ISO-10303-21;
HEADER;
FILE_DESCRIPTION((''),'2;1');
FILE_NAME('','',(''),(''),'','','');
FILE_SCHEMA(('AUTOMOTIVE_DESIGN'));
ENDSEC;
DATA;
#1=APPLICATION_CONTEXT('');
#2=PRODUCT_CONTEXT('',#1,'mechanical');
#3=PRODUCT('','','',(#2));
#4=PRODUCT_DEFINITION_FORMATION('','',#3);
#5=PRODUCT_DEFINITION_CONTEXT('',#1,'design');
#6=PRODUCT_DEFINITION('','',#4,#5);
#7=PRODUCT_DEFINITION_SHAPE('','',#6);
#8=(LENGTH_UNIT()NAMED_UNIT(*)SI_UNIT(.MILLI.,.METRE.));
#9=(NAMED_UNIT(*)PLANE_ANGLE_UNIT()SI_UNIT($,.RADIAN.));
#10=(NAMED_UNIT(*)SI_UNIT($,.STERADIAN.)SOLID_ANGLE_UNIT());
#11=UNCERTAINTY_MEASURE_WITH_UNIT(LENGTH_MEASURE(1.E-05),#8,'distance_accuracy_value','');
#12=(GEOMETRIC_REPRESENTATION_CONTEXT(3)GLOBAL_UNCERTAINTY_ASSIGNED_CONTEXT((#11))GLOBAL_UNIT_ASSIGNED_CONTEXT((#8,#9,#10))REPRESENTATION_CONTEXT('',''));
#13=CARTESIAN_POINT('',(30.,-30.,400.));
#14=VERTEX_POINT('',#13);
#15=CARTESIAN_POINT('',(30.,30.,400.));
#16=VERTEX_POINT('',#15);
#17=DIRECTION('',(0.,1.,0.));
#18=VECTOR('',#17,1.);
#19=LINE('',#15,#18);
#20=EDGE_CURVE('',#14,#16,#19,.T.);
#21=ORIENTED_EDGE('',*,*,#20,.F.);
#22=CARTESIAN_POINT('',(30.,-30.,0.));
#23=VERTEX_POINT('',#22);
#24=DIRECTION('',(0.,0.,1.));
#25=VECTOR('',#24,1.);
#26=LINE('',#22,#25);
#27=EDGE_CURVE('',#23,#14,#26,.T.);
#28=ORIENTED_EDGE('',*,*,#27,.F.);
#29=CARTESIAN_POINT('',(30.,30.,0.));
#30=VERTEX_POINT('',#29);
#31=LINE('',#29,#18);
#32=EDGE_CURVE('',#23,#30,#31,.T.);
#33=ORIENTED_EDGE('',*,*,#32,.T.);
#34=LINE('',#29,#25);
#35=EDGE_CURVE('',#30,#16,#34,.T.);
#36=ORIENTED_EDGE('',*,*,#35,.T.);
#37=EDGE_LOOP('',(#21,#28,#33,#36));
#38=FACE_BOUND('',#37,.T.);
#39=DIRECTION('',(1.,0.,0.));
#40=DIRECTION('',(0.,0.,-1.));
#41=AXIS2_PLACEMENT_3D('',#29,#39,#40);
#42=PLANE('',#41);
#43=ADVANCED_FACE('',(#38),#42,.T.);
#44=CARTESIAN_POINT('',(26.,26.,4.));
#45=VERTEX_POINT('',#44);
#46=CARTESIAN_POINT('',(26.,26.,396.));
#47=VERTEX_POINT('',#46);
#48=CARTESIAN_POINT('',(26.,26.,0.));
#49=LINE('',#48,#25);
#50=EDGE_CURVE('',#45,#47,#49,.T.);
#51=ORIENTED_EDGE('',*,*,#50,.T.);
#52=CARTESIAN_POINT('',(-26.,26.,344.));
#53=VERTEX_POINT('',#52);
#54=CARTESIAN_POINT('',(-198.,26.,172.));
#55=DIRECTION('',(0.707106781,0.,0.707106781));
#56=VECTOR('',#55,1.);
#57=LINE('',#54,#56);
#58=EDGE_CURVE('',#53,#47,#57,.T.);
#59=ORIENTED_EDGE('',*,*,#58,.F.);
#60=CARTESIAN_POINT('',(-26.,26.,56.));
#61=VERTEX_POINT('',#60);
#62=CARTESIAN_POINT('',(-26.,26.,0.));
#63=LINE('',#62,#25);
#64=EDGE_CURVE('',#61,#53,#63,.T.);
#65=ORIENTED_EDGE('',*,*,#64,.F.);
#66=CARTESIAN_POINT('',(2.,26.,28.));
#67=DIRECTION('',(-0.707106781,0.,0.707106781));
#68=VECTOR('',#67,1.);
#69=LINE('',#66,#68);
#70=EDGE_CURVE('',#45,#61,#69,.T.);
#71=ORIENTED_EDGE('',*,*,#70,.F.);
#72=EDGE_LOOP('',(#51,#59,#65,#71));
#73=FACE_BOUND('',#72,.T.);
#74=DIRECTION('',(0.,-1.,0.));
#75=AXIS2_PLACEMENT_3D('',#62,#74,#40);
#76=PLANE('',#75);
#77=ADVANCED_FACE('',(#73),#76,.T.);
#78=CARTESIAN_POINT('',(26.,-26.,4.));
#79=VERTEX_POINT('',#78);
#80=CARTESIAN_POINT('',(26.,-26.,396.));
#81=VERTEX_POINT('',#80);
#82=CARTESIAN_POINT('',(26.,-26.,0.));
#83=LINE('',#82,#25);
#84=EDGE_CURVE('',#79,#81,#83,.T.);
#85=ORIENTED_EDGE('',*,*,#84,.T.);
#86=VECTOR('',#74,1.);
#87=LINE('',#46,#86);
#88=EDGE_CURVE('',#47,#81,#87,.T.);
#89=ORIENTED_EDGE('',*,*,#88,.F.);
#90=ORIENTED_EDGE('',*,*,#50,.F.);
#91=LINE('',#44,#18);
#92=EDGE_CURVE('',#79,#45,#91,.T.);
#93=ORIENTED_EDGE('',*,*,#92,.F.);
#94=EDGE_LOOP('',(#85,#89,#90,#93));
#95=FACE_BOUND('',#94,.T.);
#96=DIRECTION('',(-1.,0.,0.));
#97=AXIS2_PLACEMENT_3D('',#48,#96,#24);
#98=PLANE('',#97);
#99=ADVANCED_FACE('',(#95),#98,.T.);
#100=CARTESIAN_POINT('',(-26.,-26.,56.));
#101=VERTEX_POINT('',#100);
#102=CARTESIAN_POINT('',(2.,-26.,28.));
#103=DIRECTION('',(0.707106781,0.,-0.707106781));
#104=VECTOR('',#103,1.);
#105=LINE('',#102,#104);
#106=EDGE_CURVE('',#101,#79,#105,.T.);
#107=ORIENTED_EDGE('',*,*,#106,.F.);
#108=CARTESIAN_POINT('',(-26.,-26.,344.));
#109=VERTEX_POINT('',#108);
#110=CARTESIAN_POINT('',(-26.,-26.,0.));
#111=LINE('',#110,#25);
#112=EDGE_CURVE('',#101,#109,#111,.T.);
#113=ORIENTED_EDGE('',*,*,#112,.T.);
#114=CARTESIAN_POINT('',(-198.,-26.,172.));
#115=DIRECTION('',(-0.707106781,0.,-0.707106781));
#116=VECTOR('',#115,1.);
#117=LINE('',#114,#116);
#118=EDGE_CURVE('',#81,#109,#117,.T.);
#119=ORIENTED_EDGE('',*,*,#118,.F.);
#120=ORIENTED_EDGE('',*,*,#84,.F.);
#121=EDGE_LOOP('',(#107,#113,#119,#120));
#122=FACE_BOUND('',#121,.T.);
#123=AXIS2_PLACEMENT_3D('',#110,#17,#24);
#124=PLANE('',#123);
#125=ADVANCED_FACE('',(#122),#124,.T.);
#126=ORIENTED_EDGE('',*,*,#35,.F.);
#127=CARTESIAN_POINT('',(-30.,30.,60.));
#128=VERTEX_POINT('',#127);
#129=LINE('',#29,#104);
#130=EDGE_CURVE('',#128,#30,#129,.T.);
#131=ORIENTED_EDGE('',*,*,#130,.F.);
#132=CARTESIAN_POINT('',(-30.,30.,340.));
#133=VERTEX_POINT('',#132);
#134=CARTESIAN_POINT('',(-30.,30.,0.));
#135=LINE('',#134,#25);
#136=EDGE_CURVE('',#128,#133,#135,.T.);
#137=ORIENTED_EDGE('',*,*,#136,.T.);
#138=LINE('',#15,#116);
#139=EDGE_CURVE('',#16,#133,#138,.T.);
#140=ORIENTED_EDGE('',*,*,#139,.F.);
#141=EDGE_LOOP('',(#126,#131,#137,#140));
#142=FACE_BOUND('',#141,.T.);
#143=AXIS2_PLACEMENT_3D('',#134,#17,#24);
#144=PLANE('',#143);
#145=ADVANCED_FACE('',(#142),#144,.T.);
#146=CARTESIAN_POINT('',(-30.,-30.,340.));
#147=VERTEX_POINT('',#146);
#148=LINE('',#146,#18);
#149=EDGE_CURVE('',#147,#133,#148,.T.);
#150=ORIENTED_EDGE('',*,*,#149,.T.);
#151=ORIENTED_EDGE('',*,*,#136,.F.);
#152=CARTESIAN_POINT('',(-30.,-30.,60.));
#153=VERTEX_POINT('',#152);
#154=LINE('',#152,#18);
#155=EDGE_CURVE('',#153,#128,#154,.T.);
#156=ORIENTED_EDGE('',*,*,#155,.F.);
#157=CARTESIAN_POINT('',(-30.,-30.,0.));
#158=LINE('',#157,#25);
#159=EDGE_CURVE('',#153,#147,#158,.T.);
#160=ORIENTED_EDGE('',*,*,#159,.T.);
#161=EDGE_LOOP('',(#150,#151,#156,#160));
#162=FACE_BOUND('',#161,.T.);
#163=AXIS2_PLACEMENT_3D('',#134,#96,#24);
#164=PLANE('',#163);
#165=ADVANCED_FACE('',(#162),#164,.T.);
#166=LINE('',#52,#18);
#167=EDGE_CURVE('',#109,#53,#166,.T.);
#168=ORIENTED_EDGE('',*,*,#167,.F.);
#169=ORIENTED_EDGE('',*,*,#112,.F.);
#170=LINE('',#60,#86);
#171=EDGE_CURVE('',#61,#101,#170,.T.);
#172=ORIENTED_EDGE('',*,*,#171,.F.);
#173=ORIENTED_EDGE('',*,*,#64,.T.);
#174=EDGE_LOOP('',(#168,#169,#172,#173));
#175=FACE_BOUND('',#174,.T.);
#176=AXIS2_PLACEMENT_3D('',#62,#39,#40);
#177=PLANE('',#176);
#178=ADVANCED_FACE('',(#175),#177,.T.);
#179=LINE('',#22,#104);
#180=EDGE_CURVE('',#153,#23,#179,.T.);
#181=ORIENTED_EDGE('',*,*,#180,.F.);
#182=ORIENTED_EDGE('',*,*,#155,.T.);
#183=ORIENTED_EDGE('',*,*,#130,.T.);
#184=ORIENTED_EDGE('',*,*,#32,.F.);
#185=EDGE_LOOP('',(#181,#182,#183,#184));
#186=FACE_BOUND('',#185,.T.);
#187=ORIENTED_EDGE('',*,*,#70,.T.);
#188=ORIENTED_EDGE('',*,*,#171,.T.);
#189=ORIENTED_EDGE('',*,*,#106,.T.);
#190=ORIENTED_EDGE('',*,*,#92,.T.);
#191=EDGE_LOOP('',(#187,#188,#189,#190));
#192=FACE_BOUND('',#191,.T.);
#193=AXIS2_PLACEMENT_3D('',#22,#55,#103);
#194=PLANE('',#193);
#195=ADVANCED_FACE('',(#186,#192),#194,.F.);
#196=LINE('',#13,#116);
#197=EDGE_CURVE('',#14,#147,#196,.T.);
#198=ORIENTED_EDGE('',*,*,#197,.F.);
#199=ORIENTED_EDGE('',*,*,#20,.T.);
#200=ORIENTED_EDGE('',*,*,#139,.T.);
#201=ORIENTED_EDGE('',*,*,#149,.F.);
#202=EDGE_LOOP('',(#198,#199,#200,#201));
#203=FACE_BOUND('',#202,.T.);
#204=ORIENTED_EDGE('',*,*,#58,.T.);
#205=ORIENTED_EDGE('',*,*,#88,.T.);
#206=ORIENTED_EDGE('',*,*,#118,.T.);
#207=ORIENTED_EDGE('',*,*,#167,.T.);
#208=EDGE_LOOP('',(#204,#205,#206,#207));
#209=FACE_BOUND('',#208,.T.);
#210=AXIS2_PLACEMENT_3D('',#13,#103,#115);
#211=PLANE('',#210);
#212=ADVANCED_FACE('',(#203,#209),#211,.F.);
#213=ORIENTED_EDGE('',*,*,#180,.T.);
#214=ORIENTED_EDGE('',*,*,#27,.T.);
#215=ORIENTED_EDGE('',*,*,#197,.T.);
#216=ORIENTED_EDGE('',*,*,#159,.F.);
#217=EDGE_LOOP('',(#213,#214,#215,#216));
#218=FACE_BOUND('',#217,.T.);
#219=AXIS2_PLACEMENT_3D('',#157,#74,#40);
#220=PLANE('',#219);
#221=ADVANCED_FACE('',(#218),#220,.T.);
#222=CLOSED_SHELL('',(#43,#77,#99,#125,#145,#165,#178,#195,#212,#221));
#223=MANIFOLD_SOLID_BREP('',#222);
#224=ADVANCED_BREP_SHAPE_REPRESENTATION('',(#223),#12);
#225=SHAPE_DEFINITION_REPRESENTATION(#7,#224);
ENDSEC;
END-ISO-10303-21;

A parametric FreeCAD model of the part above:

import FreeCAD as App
import Part
import Sketcher
from FreeCAD import Vector


def add_polygon(sketch, points):
    """Adds a closed chain of lines whose ends are joined by coincident constraints."""
    first, n = sketch.GeometryCount, len(points)
    for a, b in zip(points, points[1:] + points[:1]):
        sketch.addGeometry(Part.LineSegment(App.Vector(*a, 0), App.Vector(*b, 0)), False)
    for i in range(n):
        sketch.addConstraint(Sketcher.Constraint("Coincident", first + i, 2, first + (i + 1) % n, 1))

doc = App.newDocument("Part")
body = doc.addObject("PartDesign::Body", "Body")

# Sketch on XY plane
sketch1 = body.newObject("Sketcher::SketchObject", "Sketch")
sketch1.AttachmentSupport = (doc.getObject("XY_Plane"), [""])
sketch1.MapMode = "FlatFace"
add_polygon(sketch1, [(-30, 30), (-30, -30), (30, -30), (30, 30)])  # lines 0-3
add_polygon(sketch1, [(26, -26), (-26, -26), (-26, 26), (26, 26)])  # lines 4-7
sketch1.addConstraint(Sketcher.Constraint("Vertical", 0))
sketch1.addConstraint(Sketcher.Constraint("Horizontal", 1))
sketch1.addConstraint(Sketcher.Constraint("Vertical", 2))
sketch1.addConstraint(Sketcher.Constraint("Horizontal", 3))
sketch1.addConstraint(Sketcher.Constraint("Horizontal", 4))
sketch1.addConstraint(Sketcher.Constraint("Vertical", 5))
sketch1.addConstraint(Sketcher.Constraint("Horizontal", 6))
sketch1.addConstraint(Sketcher.Constraint("Vertical", 7))
sketch1.addConstraint(Sketcher.Constraint("Symmetric", 0, 2, 2, 2, -1, 1))
sketch1.addConstraint(Sketcher.Constraint("Symmetric", 4, 2, 6, 2, -1, 1))
sketch1.addConstraint(Sketcher.Constraint("Equal", 3, 0))
sketch1.addConstraint(Sketcher.Constraint("Equal", 6, 5))
sketch1.addConstraint(Sketcher.Constraint("DistanceX", 1, 1, 1, 2, 60.0))
sketch1.addConstraint(Sketcher.Constraint("DistanceX", 4, 2, 4, 1, 52.0))

# Sketch on XZ plane
sketch2 = body.newObject("Sketcher::SketchObject", "Sketch001")
sketch2.AttachmentSupport = (doc.getObject("XZ_Plane"), [""])
sketch2.MapMode = "FlatFace"
sketch2.addGeometry(Part.BSplineCurve([Vector(0, 0, 0), Vector(0, 400, 0)], [2, 2], [0, 1], False, 1, [1, 1], False), False)
sketch2.addConstraint(Sketcher.Constraint("Block", 0))
doc.recompute()

additivepipe = body.newObject("PartDesign::AdditivePipe", "AdditivePipe")
additivepipe.Profile = sketch1
additivepipe.Spine = (sketch2, ["Edge1"])

# Sketch on XZ plane
sketch3 = body.newObject("Sketcher::SketchObject", "Sketch002")
sketch3.AttachmentSupport = (doc.getObject("XZ_Plane"), [""])
sketch3.MapMode = "FlatFace"
sketch3.AttachmentOffset = App.Placement(Vector(0, 0, -30), App.Rotation())
add_polygon(sketch3, [(-30, 60), (30, 0), (-30, 0)])  # lines 0-2
add_polygon(sketch3, [(30, 400), (-30, 340), (-30, 400)])  # lines 3-5
sketch3.addConstraint(Sketcher.Constraint("Horizontal", 1))
sketch3.addConstraint(Sketcher.Constraint("Vertical", 2))
sketch3.addConstraint(Sketcher.Constraint("Vertical", 4))
sketch3.addConstraint(Sketcher.Constraint("Horizontal", 5))
sketch3.addConstraint(Sketcher.Constraint("Symmetric", 0, 2, 1, 2, -1, 1))
sketch3.addConstraint(Sketcher.Constraint("Perpendicular", 0, 3))
sketch3.addConstraint(Sketcher.Constraint("Vertical", 2, 2, 3, 2))
sketch3.addConstraint(Sketcher.Constraint("Vertical", 0, 2, 5, 2))
sketch3.addConstraint(Sketcher.Constraint("Equal", 5, 2))
sketch3.addConstraint(Sketcher.Constraint("DistanceX", 1, 2, 1, 1, 60.0))
sketch3.addConstraint(Sketcher.Constraint("DistanceY", -1, 1, 3, 2, 340.0))
pocket1 = body.newObject("PartDesign::Pocket", "Pocket")
pocket1.Profile = sketch3
pocket1.Type = "ThroughAll"
pocket1.Reversed = True

doc.recompute()
